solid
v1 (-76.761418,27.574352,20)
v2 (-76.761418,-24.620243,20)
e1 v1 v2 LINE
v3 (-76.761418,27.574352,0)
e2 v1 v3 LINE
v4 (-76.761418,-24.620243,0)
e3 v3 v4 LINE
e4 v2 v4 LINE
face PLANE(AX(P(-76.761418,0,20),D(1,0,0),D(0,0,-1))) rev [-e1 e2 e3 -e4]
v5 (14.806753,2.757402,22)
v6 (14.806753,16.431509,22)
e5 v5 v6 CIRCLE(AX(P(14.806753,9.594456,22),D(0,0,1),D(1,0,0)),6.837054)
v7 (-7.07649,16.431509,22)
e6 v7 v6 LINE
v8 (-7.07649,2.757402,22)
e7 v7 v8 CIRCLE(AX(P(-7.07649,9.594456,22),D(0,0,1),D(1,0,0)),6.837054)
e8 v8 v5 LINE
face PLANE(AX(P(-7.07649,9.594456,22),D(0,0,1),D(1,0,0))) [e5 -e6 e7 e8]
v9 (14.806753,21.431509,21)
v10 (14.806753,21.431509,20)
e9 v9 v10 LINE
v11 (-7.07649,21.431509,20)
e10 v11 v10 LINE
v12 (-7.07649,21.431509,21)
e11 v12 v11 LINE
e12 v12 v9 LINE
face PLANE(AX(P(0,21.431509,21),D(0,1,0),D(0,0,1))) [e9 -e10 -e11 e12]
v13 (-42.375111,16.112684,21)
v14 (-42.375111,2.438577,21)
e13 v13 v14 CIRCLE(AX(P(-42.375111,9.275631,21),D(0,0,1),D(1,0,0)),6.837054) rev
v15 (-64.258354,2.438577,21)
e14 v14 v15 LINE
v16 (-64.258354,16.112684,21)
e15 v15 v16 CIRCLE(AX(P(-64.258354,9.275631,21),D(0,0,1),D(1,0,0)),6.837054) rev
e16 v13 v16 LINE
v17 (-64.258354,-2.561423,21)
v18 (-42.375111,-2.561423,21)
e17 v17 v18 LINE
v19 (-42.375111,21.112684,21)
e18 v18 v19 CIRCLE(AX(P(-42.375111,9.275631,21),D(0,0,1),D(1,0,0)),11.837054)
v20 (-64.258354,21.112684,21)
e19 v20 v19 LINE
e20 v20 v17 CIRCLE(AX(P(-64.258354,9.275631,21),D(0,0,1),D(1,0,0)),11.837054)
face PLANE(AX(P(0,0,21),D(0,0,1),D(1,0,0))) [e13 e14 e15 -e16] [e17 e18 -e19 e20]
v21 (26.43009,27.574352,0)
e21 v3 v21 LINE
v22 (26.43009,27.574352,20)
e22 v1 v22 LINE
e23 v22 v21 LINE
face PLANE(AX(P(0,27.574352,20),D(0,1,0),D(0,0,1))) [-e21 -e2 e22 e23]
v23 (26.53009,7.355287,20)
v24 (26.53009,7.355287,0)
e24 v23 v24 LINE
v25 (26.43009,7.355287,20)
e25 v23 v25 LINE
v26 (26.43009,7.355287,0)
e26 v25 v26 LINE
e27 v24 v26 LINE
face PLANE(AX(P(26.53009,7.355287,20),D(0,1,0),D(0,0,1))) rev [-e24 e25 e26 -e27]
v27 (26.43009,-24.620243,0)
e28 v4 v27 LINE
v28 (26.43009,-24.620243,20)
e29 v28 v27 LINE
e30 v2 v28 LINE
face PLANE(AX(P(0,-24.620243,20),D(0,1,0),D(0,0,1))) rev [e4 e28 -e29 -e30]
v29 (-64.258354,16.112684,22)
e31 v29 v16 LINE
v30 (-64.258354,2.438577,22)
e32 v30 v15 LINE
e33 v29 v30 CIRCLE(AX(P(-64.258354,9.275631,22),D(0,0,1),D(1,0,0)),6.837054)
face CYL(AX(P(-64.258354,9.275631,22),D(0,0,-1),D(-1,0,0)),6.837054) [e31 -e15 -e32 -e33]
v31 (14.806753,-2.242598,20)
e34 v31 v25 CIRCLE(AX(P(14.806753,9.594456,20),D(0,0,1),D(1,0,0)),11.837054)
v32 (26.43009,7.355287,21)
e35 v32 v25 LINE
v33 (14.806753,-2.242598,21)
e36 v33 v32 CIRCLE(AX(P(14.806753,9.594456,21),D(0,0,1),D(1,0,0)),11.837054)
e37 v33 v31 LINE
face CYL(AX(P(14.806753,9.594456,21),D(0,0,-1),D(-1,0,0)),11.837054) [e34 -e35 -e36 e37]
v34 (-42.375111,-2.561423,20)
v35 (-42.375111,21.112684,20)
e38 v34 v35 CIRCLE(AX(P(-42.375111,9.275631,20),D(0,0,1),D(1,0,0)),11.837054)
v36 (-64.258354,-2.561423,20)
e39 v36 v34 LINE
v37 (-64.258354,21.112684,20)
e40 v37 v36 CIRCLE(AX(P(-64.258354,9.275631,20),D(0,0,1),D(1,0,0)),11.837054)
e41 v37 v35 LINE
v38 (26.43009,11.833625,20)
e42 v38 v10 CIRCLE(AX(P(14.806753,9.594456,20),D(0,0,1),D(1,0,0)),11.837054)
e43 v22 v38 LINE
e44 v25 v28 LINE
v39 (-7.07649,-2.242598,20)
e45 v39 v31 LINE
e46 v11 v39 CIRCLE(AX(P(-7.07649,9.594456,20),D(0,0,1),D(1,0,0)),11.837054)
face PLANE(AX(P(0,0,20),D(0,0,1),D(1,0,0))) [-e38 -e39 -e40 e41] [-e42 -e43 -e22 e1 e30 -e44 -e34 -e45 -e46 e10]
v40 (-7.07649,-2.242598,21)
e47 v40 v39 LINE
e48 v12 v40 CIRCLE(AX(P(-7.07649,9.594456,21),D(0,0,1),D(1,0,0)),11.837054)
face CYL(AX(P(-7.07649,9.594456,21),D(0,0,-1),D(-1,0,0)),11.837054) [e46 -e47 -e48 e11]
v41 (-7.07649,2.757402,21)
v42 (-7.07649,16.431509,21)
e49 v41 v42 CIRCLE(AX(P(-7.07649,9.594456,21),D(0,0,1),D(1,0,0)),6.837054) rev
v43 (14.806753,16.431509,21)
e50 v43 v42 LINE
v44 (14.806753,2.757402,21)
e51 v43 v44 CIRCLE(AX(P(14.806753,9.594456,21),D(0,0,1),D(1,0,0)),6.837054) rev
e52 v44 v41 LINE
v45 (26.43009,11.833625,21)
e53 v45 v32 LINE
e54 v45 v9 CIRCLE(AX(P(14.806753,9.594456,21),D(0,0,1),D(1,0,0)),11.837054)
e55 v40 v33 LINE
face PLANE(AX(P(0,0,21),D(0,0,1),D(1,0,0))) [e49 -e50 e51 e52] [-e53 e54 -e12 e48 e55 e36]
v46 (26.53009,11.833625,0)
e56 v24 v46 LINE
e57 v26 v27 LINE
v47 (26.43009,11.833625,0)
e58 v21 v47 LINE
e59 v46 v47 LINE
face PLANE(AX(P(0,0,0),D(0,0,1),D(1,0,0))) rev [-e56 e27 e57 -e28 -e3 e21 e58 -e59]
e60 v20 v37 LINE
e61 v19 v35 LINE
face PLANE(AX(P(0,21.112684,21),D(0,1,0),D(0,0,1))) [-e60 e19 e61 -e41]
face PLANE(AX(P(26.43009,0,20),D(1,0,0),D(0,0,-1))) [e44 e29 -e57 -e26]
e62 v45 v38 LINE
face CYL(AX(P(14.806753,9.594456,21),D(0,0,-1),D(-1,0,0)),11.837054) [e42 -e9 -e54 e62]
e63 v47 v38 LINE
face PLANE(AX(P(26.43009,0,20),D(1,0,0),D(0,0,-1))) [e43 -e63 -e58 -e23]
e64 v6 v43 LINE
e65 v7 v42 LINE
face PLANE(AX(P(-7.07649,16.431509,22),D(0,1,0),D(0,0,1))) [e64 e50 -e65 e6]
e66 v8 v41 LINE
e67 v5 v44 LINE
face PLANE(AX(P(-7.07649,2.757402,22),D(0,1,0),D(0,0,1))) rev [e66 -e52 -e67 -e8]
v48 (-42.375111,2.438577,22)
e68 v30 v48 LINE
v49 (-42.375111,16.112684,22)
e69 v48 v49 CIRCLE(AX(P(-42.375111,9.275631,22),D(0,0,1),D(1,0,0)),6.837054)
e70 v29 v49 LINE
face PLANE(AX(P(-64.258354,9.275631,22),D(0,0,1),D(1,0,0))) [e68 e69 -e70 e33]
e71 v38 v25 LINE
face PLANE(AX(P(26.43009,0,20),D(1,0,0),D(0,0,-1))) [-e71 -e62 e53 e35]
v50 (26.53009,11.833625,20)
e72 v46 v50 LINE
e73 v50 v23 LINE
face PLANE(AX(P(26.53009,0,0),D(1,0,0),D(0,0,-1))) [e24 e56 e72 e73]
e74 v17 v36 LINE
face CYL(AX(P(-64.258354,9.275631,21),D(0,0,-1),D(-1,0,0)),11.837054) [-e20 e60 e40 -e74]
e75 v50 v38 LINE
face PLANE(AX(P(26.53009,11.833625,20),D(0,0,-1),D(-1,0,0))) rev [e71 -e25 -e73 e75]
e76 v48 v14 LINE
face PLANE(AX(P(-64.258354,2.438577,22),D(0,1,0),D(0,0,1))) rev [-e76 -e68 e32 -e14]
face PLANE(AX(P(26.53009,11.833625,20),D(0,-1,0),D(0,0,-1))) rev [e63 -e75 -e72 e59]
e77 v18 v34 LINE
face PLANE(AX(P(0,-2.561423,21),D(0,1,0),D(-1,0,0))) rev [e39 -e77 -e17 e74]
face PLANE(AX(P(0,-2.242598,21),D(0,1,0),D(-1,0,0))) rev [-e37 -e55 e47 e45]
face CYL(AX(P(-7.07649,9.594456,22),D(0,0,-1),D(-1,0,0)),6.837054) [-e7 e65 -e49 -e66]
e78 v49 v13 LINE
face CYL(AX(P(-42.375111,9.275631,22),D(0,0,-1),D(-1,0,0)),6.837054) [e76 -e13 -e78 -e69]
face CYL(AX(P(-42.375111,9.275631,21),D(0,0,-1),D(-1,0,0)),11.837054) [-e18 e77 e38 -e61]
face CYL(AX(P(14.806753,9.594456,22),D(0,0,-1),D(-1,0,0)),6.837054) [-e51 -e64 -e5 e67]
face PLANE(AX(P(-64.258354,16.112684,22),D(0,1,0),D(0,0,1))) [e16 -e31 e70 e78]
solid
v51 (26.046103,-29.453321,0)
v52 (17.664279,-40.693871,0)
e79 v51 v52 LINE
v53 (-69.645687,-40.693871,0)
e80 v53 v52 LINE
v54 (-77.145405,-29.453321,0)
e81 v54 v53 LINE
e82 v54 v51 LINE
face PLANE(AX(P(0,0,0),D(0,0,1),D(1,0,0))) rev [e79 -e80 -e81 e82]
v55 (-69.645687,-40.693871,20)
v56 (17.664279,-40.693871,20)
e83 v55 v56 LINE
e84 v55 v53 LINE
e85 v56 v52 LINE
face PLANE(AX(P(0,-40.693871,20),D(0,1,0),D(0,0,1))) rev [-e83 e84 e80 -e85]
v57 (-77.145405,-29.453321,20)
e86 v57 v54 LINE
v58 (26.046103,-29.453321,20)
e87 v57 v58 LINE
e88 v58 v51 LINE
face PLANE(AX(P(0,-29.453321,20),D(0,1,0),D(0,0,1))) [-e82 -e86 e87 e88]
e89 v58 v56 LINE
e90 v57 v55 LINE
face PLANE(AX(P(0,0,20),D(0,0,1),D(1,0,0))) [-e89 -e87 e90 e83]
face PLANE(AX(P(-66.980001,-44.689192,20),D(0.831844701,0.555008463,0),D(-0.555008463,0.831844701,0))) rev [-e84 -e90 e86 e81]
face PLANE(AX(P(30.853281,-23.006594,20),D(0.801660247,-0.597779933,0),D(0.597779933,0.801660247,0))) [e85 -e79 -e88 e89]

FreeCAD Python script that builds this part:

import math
import FreeCAD as App
import Part
import Sketcher
Q = App.Units.Quantity

doc = App.newDocument("Part")
body = doc.addObject("PartDesign::Body", "Body")

sketch1 = body.newObject("Sketcher::SketchObject", "Sketch")
sketch1.AttachmentSupport = (doc.getObject("XY_Plane"), [""])
sketch1.MapMode = "FlatFace"
sketch1.addGeometry(Part.LineSegment(App.Vector(26.43009, 27.574352, 0), App.Vector(-76.761418, 27.574352, 0)), False)
sketch1.addGeometry(Part.LineSegment(App.Vector(-76.761418, 27.574352, 0), App.Vector(-76.761418, -24.620243, 0)), False)
sketch1.addGeometry(Part.LineSegment(App.Vector(-76.761418, -24.620243, 0), App.Vector(26.43009, -24.620243, 0)), False)
sketch1.addGeometry(Part.LineSegment(App.Vector(26.43009, -24.620243, 0), App.Vector(26.43009, 7.355287, 0)), False)
sketch1.addGeometry(Part.ArcOfCircle(Part.Circle(App.Vector(14.806753, 9.594456, 0), App.Vector(0, 0, 1), 11.837054), math.radians(-90), math.radians(-10.904121)), False)
sketch1.addGeometry(Part.LineSegment(App.Vector(14.806753, -2.242598, 0), App.Vector(-7.07649, -2.242598, 0)), False)
sketch1.addGeometry(Part.ArcOfCircle(Part.Circle(App.Vector(-7.07649, 9.594456, 0), App.Vector(0, 0, 1), 11.837054), math.radians(90), math.radians(270)), False)
sketch1.addGeometry(Part.LineSegment(App.Vector(-7.07649, 21.431509, 0), App.Vector(14.806753, 21.431509, 0)), False)
sketch1.addGeometry(Part.ArcOfCircle(Part.Circle(App.Vector(14.806753, 9.594456, 0), App.Vector(0, 0, 1), 11.837054), math.radians(10.904121), math.radians(90)), False)
sketch1.addGeometry(Part.LineSegment(App.Vector(26.43009, 11.833625, 0), App.Vector(26.43009, 27.574352, 0)), False)
sketch1.addGeometry(Part.LineSegment(App.Vector(-42.375111, -2.561423, 0), App.Vector(-64.258354, -2.561423, 0)), False)
sketch1.addGeometry(Part.ArcOfCircle(Part.Circle(App.Vector(-64.258354, 9.275631, 0), App.Vector(0, 0, 1), 11.837054), math.radians(90), math.radians(270)), False)
sketch1.addGeometry(Part.LineSegment(App.Vector(-64.258354, 21.112684, 0), App.Vector(-42.375111, 21.112684, 0)), False)
sketch1.addGeometry(Part.ArcOfCircle(Part.Circle(App.Vector(-42.375111, 9.275631, 0), App.Vector(0, 0, 1), 11.837054), math.radians(-90), math.radians(90)), False)
sketch1.addConstraint(Sketcher.Constraint("Coincident", 0, 2, 1, 1))
sketch1.addConstraint(Sketcher.Constraint("Coincident", 1, 2, 2, 1))
sketch1.addConstraint(Sketcher.Constraint("Coincident", 2, 2, 3, 1))
sketch1.addConstraint(Sketcher.Constraint("Coincident", 3, 2, 4, 2))
sketch1.addConstraint(Sketcher.Constraint("Tangent", 4, 1, 5, 1))
sketch1.addConstraint(Sketcher.Constraint("Tangent", 5, 2, 6, 2))
sketch1.addConstraint(Sketcher.Constraint("Tangent", 6, 1, 7, 1))
sketch1.addConstraint(Sketcher.Constraint("Tangent", 7, 2, 8, 2))
sketch1.addConstraint(Sketcher.Constraint("Coincident", 8, 1, 9, 1))
sketch1.addConstraint(Sketcher.Constraint("Coincident", 9, 2, 0, 1))
sketch1.addConstraint(Sketcher.Constraint("Tangent", 10, 2, 11, 2))
sketch1.addConstraint(Sketcher.Constraint("Tangent", 11, 1, 12, 1))
sketch1.addConstraint(Sketcher.Constraint("Tangent", 12, 2, 13, 2))
sketch1.addConstraint(Sketcher.Constraint("Tangent", 13, 1, 10, 1))
sketch1.addConstraint(Sketcher.Constraint("Horizontal", 0))
sketch1.addConstraint(Sketcher.Constraint("Vertical", 1))
sketch1.addConstraint(Sketcher.Constraint("Horizontal", 2))
sketch1.addConstraint(Sketcher.Constraint("Vertical", 3))
sketch1.addConstraint(Sketcher.Constraint("Horizontal", 5))
sketch1.addConstraint(Sketcher.Constraint("Horizontal", 7))
sketch1.addConstraint(Sketcher.Constraint("Vertical", 9))
sketch1.addConstraint(Sketcher.Constraint("Horizontal", 10))
sketch1.addConstraint(Sketcher.Constraint("Horizontal", 12))
sketch1.addConstraint(Sketcher.Constraint("Coincident", 8, 3, 4, 3))
sketch1.addConstraint(Sketcher.Constraint("Equal", 4, 6))
sketch1.addConstraint(Sketcher.Constraint("Equal", 8, 11))
sketch1.addConstraint(Sketcher.Constraint("Vertical", 3, 2, 8, 1))
sketch1.addConstraint(Sketcher.Constraint("Equal", 7, 10))
sketch1.addConstraint(Sketcher.Constraint("Radius", 4, Q("11.837054 mm")))
sketch1.addConstraint(Sketcher.Constraint("DistanceY", 3, 1, 3, 2, Q("31.97553 mm")))
sketch1.addConstraint(Sketcher.Constraint("DistanceY", 1, 2, 6, 3, Q("34.214699 mm")))
sketch1.addConstraint(Sketcher.Constraint("DistanceX", 13, 3, 2, 2, Q("68.805201 mm")))
sketch1.addConstraint(Sketcher.Constraint("DistanceX", 0, 2, 0, 1, Q("103.191508 mm")))
sketch1.addConstraint(Sketcher.Constraint("DistanceX", 5, 2, 5, 1, Q("21.883243 mm")))
sketch1.addConstraint(Sketcher.Constraint("DistanceY", 1, 2, 1, 1, Q("52.194596 mm")))
sketch1.addConstraint(Sketcher.Constraint("DistanceX", 6, 3, -1, 1, Q("7.07649 mm")))
sketch1.addConstraint(Sketcher.Constraint("DistanceY", -1, 1, 11, 3, Q("9.275631 mm")))
sketch1.addConstraint(Sketcher.Constraint("DistanceY", -1, 1, 6, 1, Q("21.431509 mm")))
pad1 = body.newObject("PartDesign::Pad", "Pad")
pad1.Profile = sketch1
pad1.Length = 20
body2 = doc.addObject("PartDesign::Body", "Body001")

sketch2 = body2.newObject("Sketcher::SketchObject", "Sketch001")
sketch2.AttachmentSupport = (doc.getObject("XY_Plane001"), [""])
sketch2.MapMode = "FlatFace"
sketch2.addGeometry(Part.LineSegment(App.Vector(26.046103, -29.453321, 0), App.Vector(-77.145405, -29.453321, 0)), False)
sketch2.addGeometry(Part.LineSegment(App.Vector(-77.145405, -29.453321, 0), App.Vector(-69.645687, -40.693871, 0)), False)
sketch2.addGeometry(Part.LineSegment(App.Vector(-69.645687, -40.693871, 0), App.Vector(17.664279, -40.693871, 0)), False)
sketch2.addGeometry(Part.LineSegment(App.Vector(17.664279, -40.693871, 0), App.Vector(26.046103, -29.453321, 0)), False)
sketch2.addConstraint(Sketcher.Constraint("Coincident", 0, 2, 1, 1))
sketch2.addConstraint(Sketcher.Constraint("Coincident", 1, 2, 2, 1))
sketch2.addConstraint(Sketcher.Constraint("Coincident", 2, 2, 3, 1))
sketch2.addConstraint(Sketcher.Constraint("Coincident", 3, 2, 0, 1))
sketch2.addConstraint(Sketcher.Constraint("Horizontal", 0))
sketch2.addConstraint(Sketcher.Constraint("Horizontal", 2))
sketch2.addConstraint(Sketcher.Constraint("Distance", 1, Q("13.512799 mm")))
sketch2.addConstraint(Sketcher.Constraint("Distance", 3, Q("14.021589 mm")))
sketch2.addConstraint(Sketcher.Constraint("DistanceX", 0, 2, 0, 1, Q("103.191508 mm")))
sketch2.addConstraint(Sketcher.Constraint("DistanceX", 2, 1, 2, 2, Q("87.309966 mm")))
sketch2.addConstraint(Sketcher.Constraint("DistanceY", 0, 2, -1, 1, Q("29.453321 mm")))
sketch2.addConstraint(Sketcher.Constraint("DistanceX", -1, 1, 2, 2, Q("17.664279 mm")))
pad2 = body2.newObject("PartDesign::Pad", "Pad001")
pad2.Profile = sketch2
pad2.Length = 20
body3 = doc.addObject("PartDesign::Body", "Body002")

sketch3 = body3.newObject("Sketcher::SketchObject", "Sketch002")
sketch3.AttachmentSupport = (doc.getObject("YZ_Plane002"), [""])
sketch3.MapMode = "FlatFace"
sketch3.AttachmentOffset = App.Placement(App.Vector(0, 0, 26.43009), App.Rotation())
sketch3.addGeometry(Part.LineSegment(App.Vector(11.833625, 20, 0), App.Vector(7.355287, 20, 0)), False)
sketch3.addGeometry(Part.LineSegment(App.Vector(7.355287, 20, 0), App.Vector(7.355287, 0, 0)), False)
sketch3.addGeometry(Part.LineSegment(App.Vector(7.355287, 0, 0), App.Vector(11.833625, 0, 0)), False)
sketch3.addGeometry(Part.LineSegment(App.Vector(11.833625, 0, 0), App.Vector(11.833625, 20, 0)), False)
sketch3.addConstraint(Sketcher.Constraint("Coincident", 0, 2, 1, 1))
sketch3.addConstraint(Sketcher.Constraint("Coincident", 1, 2, 2, 1))
sketch3.addConstraint(Sketcher.Constraint("Coincident", 2, 2, 3, 1))
sketch3.addConstraint(Sketcher.Constraint("Coincident", 3, 2, 0, 1))
sketch3.addConstraint(Sketcher.Constraint("Horizontal", 0))
sketch3.addConstraint(Sketcher.Constraint("Vertical", 1))
sketch3.addConstraint(Sketcher.Constraint("Horizontal", 2))
sketch3.addConstraint(Sketcher.Constraint("Vertical", 3))
sketch3.addConstraint(Sketcher.Constraint("PointOnObject", 1, 2, -1))
sketch3.addConstraint(Sketcher.Constraint("DistanceY", 1, 2, 1, 1, Q("20 mm")))
sketch3.addConstraint(Sketcher.Constraint("DistanceX", 0, 2, 0, 1, Q("4.478338 mm")))
sketch3.addConstraint(Sketcher.Constraint("DistanceX", -1, 1, 0, 2, Q("7.355287 mm")))
pad3 = body3.newObject("PartDesign::Pad", "Pad002")
pad3.Profile = sketch3
pad3.Length = 0.1
body.AllowCompound = True
doc.recompute()

boolean = body.newObject("PartDesign::Boolean", "Boolean")
boolean.Type = "Fuse"
boolean.addObjects([body3])

sketch4 = body.newObject("Sketcher::SketchObject", "Sketch003")
sketch4.AttachmentSupport = (doc.getObject("XY_Plane"), [""])
sketch4.MapMode = "FlatFace"
sketch4.addGeometry(Part.LineSegment(App.Vector(-42.375111, 21.112684, 0), App.Vector(-64.258354, 21.112684, 0)), False)
sketch4.addGeometry(Part.ArcOfCircle(Part.Circle(App.Vector(-64.258354, 9.275631, 0), App.Vector(0, 0, 1), 11.837054), math.radians(90), math.radians(270)), False)
sketch4.addGeometry(Part.LineSegment(App.Vector(-64.258354, -2.561423, 0), App.Vector(-42.375111, -2.561423, 0)), False)
sketch4.addGeometry(Part.ArcOfCircle(Part.Circle(App.Vector(-42.375111, 9.275631, 0), App.Vector(0, 0, 1), 11.837054), math.radians(-90), math.radians(90)), False)
sketch4.addGeometry(Part.LineSegment(App.Vector(26.43009, 7.355287, 0), App.Vector(26.43009, 11.833625, 0)), False)
sketch4.addGeometry(Part.ArcOfCircle(Part.Circle(App.Vector(14.806753, 9.594456, 0), App.Vector(0, 0, 1), 11.837054), math.radians(10.904121), math.radians(90)), False)
sketch4.addGeometry(Part.LineSegment(App.Vector(14.806753, 21.431509, 0), App.Vector(-7.07649, 21.431509, 0)), False)
sketch4.addGeometry(Part.ArcOfCircle(Part.Circle(App.Vector(-7.07649, 9.594456, 0), App.Vector(0, 0, 1), 11.837054), math.radians(90), math.radians(270)), False)
sketch4.addGeometry(Part.LineSegment(App.Vector(-7.07649, -2.242598, 0), App.Vector(14.806753, -2.242598, 0)), False)
sketch4.addGeometry(Part.ArcOfCircle(Part.Circle(App.Vector(14.806753, 9.594456, 0), App.Vector(0, 0, 1), 11.837054), math.radians(-90), math.radians(-10.904121)), False)
sketch4.addConstraint(Sketcher.Constraint("Tangent", 0, 2, 1, 1))
sketch4.addConstraint(Sketcher.Constraint("Tangent", 1, 2, 2, 1))
sketch4.addConstraint(Sketcher.Constraint("Tangent", 2, 2, 3, 1))
sketch4.addConstraint(Sketcher.Constraint("Tangent", 3, 2, 0, 1))
sketch4.addConstraint(Sketcher.Constraint("Coincident", 4, 2, 5, 1))
sketch4.addConstraint(Sketcher.Constraint("Tangent", 5, 2, 6, 1))
sketch4.addConstraint(Sketcher.Constraint("Tangent", 6, 2, 7, 1))
sketch4.addConstraint(Sketcher.Constraint("Tangent", 7, 2, 8, 1))
sketch4.addConstraint(Sketcher.Constraint("Tangent", 8, 2, 9, 1))
sketch4.addConstraint(Sketcher.Constraint("Coincident", 9, 2, 4, 1))
sketch4.addConstraint(Sketcher.Constraint("Horizontal", 0))
sketch4.addConstraint(Sketcher.Constraint("Horizontal", 2))
sketch4.addConstraint(Sketcher.Constraint("Vertical", 4))
sketch4.addConstraint(Sketcher.Constraint("Horizontal", 6))
sketch4.addConstraint(Sketcher.Constraint("Horizontal", 8))
sketch4.addConstraint(Sketcher.Constraint("Coincident", 9, 3, 5, 3))
sketch4.addConstraint(Sketcher.Constraint("Equal", 3, 5))
sketch4.addConstraint(Sketcher.Constraint("Equal", 5, 7))
sketch4.addConstraint(Sketcher.Constraint("Equal", 2, 6))
sketch4.addConstraint(Sketcher.Constraint("Radius", 1, Q("11.837054 mm")))
sketch4.addConstraint(Sketcher.Constraint("DistanceX", 3, 3, 4, 2, Q("68.805201 mm")))
sketch4.addConstraint(Sketcher.Constraint("DistanceX", 0, 2, 0, 1, Q("21.883243 mm")))
sketch4.addConstraint(Sketcher.Constraint("DistanceY", 4, 1, 4, 2, Q("4.478338 mm")))
sketch4.addConstraint(Sketcher.Constraint("DistanceY", -1, 1, 1, 3, Q("9.275631 mm")))
sketch4.addConstraint(Sketcher.Constraint("DistanceX", 3, 3, -1, 1, Q("42.375111 mm")))
sketch4.addConstraint(Sketcher.Constraint("DistanceY", -1, 1, 5, 2, Q("21.431509 mm")))
pad4 = body.newObject("PartDesign::Pad", "Pad003")
pad4.Profile = sketch4
pad4.Length = 21

sketch5 = body.newObject("Sketcher::SketchObject", "Sketch004")
sketch5.AttachmentSupport = (doc.getObject("XY_Plane"), [""])
sketch5.MapMode = "FlatFace"
sketch5.addGeometry(Part.LineSegment(App.Vector(-42.375111, 16.112684, 0), App.Vector(-64.258354, 16.112684, 0)), False)
sketch5.addGeometry(Part.ArcOfCircle(Part.Circle(App.Vector(-64.258354, 9.275631, 0), App.Vector(0, 0, 1), 6.837054), math.radians(90), math.radians(270)), False)
sketch5.addGeometry(Part.LineSegment(App.Vector(-64.258354, 2.438577, 0), App.Vector(-42.375111, 2.438577, 0)), False)
sketch5.addGeometry(Part.ArcOfCircle(Part.Circle(App.Vector(-42.375111, 9.275631, 0), App.Vector(0, 0, 1), 6.837054), math.radians(-90), math.radians(90)), False)
sketch5.addGeometry(Part.LineSegment(App.Vector(14.806753, 16.431509, 0), App.Vector(-7.07649, 16.431509, 0)), False)
sketch5.addGeometry(Part.ArcOfCircle(Part.Circle(App.Vector(-7.07649, 9.594456, 0), App.Vector(0, 0, 1), 6.837054), math.radians(90), math.radians(270)), False)
sketch5.addGeometry(Part.LineSegment(App.Vector(-7.07649, 2.757402, 0), App.Vector(14.806753, 2.757402, 0)), False)
sketch5.addGeometry(Part.ArcOfCircle(Part.Circle(App.Vector(14.806753, 9.594456, 0), App.Vector(0, 0, 1), 6.837054), math.radians(-90), math.radians(90)), False)
sketch5.addConstraint(Sketcher.Constraint("Tangent", 0, 2, 1, 1))
sketch5.addConstraint(Sketcher.Constraint("Tangent", 1, 2, 2, 1))
sketch5.addConstraint(Sketcher.Constraint("Tangent", 2, 2, 3, 1))
sketch5.addConstraint(Sketcher.Constraint("Tangent", 3, 2, 0, 1))
sketch5.addConstraint(Sketcher.Constraint("Tangent", 4, 2, 5, 1))
sketch5.addConstraint(Sketcher.Constraint("Tangent", 5, 2, 6, 1))
sketch5.addConstraint(Sketcher.Constraint("Tangent", 6, 2, 7, 1))
sketch5.addConstraint(Sketcher.Constraint("Tangent", 7, 2, 4, 1))
sketch5.addConstraint(Sketcher.Constraint("Horizontal", 0))
sketch5.addConstraint(Sketcher.Constraint("Horizontal", 2))
sketch5.addConstraint(Sketcher.Constraint("Horizontal", 4))
sketch5.addConstraint(Sketcher.Constraint("Horizontal", 6))
sketch5.addConstraint(Sketcher.Constraint("Equal", 3, 5))
sketch5.addConstraint(Sketcher.Constraint("Equal", 2, 4))
sketch5.addConstraint(Sketcher.Constraint("Radius", 1, Q("6.837054 mm")))
sketch5.addConstraint(Sketcher.Constraint("DistanceX", 0, 2, 0, 1, Q("21.883243 mm")))
sketch5.addConstraint(Sketcher.Constraint("DistanceY", -1, 1, 1, 3, Q("9.275631 mm")))
sketch5.addConstraint(Sketcher.Constraint("DistanceX", 3, 3, -1, 1, Q("42.375111 mm")))
sketch5.addConstraint(Sketcher.Constraint("DistanceX", 5, 3, -1, 1, Q("7.07649 mm")))
sketch5.addConstraint(Sketcher.Constraint("DistanceY", -1, 1, 4, 2, Q("16.431509 mm")))
pad5 = body.newObject("PartDesign::Pad", "Pad004")
pad5.Profile = sketch5
pad5.Length = 22

doc.recompute()
